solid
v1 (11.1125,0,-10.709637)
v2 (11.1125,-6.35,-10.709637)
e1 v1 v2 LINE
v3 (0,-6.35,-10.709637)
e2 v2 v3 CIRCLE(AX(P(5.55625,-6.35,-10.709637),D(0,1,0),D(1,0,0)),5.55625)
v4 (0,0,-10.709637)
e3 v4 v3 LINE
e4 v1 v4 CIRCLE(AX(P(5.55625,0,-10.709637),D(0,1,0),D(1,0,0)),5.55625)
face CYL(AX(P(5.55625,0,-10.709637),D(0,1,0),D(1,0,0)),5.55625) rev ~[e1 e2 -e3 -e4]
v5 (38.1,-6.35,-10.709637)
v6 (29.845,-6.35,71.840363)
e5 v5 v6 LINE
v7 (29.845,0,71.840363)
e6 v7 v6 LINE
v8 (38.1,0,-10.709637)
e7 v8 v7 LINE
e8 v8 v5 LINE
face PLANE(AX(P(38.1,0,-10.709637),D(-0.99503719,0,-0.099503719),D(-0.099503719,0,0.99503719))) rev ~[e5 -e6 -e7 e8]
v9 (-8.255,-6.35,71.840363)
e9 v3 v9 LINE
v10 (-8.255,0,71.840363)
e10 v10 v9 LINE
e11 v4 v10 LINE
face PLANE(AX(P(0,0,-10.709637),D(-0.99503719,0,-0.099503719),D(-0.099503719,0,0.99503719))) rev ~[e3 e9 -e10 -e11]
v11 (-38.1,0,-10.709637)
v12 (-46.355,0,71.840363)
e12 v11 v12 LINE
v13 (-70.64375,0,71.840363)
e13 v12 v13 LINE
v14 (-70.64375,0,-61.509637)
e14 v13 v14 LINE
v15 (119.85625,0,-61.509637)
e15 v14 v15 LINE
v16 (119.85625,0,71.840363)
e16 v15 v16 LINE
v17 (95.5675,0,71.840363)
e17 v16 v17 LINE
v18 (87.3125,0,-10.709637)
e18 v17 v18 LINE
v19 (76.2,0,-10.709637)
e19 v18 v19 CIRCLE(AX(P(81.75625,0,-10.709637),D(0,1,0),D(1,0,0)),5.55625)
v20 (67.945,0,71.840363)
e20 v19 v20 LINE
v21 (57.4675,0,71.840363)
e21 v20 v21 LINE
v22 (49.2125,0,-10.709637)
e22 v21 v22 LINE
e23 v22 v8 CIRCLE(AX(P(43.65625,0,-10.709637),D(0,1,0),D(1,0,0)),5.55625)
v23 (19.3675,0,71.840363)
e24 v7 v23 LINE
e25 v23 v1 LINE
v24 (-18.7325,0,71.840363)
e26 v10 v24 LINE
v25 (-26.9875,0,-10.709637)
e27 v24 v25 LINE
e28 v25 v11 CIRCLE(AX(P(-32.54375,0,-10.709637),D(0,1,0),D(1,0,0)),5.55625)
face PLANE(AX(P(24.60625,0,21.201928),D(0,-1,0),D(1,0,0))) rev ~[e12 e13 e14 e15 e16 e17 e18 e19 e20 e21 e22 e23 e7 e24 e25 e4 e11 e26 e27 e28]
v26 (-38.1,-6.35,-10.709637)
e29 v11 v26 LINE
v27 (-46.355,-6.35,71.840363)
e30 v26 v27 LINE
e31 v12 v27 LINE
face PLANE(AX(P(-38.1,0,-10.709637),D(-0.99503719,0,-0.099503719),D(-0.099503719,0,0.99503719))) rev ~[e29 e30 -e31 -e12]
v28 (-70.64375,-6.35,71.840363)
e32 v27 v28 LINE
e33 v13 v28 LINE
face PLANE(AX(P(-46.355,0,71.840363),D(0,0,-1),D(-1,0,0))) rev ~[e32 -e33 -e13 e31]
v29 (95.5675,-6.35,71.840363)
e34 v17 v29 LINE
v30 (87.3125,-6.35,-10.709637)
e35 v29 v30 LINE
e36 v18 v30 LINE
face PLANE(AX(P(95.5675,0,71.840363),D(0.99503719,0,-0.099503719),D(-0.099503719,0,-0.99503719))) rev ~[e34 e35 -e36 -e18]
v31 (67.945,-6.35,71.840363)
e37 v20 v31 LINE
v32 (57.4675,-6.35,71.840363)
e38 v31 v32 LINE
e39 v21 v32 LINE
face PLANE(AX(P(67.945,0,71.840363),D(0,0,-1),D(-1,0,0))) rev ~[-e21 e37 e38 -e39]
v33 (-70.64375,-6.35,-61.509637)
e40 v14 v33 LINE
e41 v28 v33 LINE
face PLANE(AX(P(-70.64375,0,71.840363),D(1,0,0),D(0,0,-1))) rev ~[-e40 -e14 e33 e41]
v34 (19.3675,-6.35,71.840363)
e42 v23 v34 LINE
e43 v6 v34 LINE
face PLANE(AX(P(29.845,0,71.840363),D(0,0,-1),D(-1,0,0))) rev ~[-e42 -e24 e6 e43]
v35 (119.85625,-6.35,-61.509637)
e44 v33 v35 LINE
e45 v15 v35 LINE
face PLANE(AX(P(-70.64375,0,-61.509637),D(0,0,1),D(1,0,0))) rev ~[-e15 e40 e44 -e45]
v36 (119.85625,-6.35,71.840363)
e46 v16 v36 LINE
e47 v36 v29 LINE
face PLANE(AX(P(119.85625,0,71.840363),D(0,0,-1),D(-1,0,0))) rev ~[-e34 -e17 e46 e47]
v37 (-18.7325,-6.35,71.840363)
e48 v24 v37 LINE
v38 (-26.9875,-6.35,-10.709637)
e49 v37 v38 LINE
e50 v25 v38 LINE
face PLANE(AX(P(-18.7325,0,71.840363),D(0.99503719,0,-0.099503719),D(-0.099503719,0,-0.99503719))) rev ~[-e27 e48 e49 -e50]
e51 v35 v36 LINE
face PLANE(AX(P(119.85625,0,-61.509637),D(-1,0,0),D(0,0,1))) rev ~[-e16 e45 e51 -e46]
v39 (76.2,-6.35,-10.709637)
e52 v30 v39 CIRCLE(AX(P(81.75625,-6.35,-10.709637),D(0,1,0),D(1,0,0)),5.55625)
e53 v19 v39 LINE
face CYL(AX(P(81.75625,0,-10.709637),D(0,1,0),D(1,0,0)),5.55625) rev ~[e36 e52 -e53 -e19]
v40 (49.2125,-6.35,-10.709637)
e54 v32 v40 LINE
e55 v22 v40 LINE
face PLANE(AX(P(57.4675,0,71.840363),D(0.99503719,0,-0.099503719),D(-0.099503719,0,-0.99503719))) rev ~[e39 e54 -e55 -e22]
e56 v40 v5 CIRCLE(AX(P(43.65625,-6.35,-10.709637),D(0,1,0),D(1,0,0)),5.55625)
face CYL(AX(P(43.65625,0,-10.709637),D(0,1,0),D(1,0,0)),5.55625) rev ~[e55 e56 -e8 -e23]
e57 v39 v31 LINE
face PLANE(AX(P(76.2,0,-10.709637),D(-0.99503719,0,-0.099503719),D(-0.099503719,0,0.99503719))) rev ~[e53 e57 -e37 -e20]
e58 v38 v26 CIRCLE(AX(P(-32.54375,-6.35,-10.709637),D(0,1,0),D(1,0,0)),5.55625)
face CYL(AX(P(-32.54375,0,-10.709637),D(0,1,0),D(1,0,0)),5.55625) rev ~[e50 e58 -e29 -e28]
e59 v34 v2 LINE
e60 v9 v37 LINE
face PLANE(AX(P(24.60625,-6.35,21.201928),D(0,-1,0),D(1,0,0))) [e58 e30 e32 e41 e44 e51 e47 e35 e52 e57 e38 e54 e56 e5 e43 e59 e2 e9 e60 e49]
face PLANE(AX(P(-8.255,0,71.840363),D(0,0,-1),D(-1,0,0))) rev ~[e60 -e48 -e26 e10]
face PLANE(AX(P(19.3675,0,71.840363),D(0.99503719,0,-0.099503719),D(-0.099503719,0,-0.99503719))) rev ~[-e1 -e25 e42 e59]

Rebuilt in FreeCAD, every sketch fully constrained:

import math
import FreeCAD as App
import Part
import Sketcher

V = App.Vector
Q = App.Units.Quantity

doc = App.newDocument("Part")
body = doc.addObject("PartDesign::Body", "Body")

# Sketch on XZ plane
sketch1 = body.newObject("Sketcher::SketchObject", "Sketch")
sketch1.AttachmentSupport = (doc.getObject("XZ_Plane"), [""])
sketch1.MapMode = "FlatFace"
sketch1.addGeometry(Part.LineSegment(V(119.85625, 71.840363, 0), V(95.5675, 71.840363, 0)), False)
sketch1.addGeometry(Part.LineSegment(V(95.5675, 71.840363, 0), V(87.3125, -10.709637, 0)), False)
sketch1.addGeometry(Part.ArcOfCircle(Part.Circle(V(81.75625, -10.709637, 0), V(0, 0, 1), 5.55625), math.radians(180), math.radians(360)), False)
sketch1.addGeometry(Part.LineSegment(V(76.2, -10.709637, 0), V(67.945, 71.840363, 0)), False)
sketch1.addGeometry(Part.LineSegment(V(67.945, 71.840363, 0), V(57.4675, 71.840363, 0)), False)
sketch1.addGeometry(Part.LineSegment(V(57.4675, 71.840363, 0), V(49.2125, -10.709637, 0)), False)
sketch1.addGeometry(Part.ArcOfCircle(Part.Circle(V(43.65625, -10.709637, 0), V(0, 0, 1), 5.55625), math.radians(180), math.radians(360)), False)
sketch1.addGeometry(Part.LineSegment(V(38.1, -10.709637, 0), V(29.845, 71.840363, 0)), False)
sketch1.addGeometry(Part.LineSegment(V(29.845, 71.840363, 0), V(19.3675, 71.840363, 0)), False)
sketch1.addGeometry(Part.LineSegment(V(19.3675, 71.840363, 0), V(11.1125, -10.709637, 0)), False)
sketch1.addGeometry(Part.ArcOfCircle(Part.Circle(V(5.55625, -10.709637, 0), V(0, 0, 1), 5.55625), math.radians(180), math.radians(360)), False)
sketch1.addGeometry(Part.LineSegment(V(0, -10.709637, 0), V(-8.255, 71.840363, 0)), False)
sketch1.addGeometry(Part.LineSegment(V(-8.255, 71.840363, 0), V(-18.7325, 71.840363, 0)), False)
sketch1.addGeometry(Part.LineSegment(V(-18.7325, 71.840363, 0), V(-26.9875, -10.709637, 0)), False)
sketch1.addGeometry(Part.ArcOfCircle(Part.Circle(V(-32.54375, -10.709637, 0), V(0, 0, 1), 5.55625), math.radians(180), math.radians(360)), False)
sketch1.addGeometry(Part.LineSegment(V(-38.1, -10.709637, 0), V(-46.355, 71.840363, 0)), False)
sketch1.addGeometry(Part.LineSegment(V(-46.355, 71.840363, 0), V(-70.64375, 71.840363, 0)), False)
sketch1.addGeometry(Part.LineSegment(V(-70.64375, 71.840363, 0), V(-70.64375, -61.509637, 0)), False)
sketch1.addGeometry(Part.LineSegment(V(-70.64375, -61.509637, 0), V(119.85625, -61.509637, 0)), False)
sketch1.addGeometry(Part.LineSegment(V(119.85625, -61.509637, 0), V(119.85625, 71.840363, 0)), False)
sketch1.addConstraint(Sketcher.Constraint("Coincident", 0, 2, 1, 1))
sketch1.addConstraint(Sketcher.Constraint("Coincident", 1, 2, 2, 2))
sketch1.addConstraint(Sketcher.Constraint("Coincident", 2, 1, 3, 1))
sketch1.addConstraint(Sketcher.Constraint("Coincident", 3, 2, 4, 1))
sketch1.addConstraint(Sketcher.Constraint("Coincident", 4, 2, 5, 1))
sketch1.addConstraint(Sketcher.Constraint("Coincident", 5, 2, 6, 2))
sketch1.addConstraint(Sketcher.Constraint("Coincident", 6, 1, 7, 1))
sketch1.addConstraint(Sketcher.Constraint("Coincident", 7, 2, 8, 1))
sketch1.addConstraint(Sketcher.Constraint("Coincident", 8, 2, 9, 1))
sketch1.addConstraint(Sketcher.Constraint("Coincident", 9, 2, 10, 2))
sketch1.addConstraint(Sketcher.Constraint("Coincident", 10, 1, 11, 1))
sketch1.addConstraint(Sketcher.Constraint("Coincident", 11, 2, 12, 1))
sketch1.addConstraint(Sketcher.Constraint("Coincident", 12, 2, 13, 1))
sketch1.addConstraint(Sketcher.Constraint("Coincident", 13, 2, 14, 2))
sketch1.addConstraint(Sketcher.Constraint("Coincident", 14, 1, 15, 1))
sketch1.addConstraint(Sketcher.Constraint("Coincident", 15, 2, 16, 1))
sketch1.addConstraint(Sketcher.Constraint("Coincident", 16, 2, 17, 1))
sketch1.addConstraint(Sketcher.Constraint("Coincident", 17, 2, 18, 1))
sketch1.addConstraint(Sketcher.Constraint("Coincident", 18, 2, 19, 1))
sketch1.addConstraint(Sketcher.Constraint("Coincident", 19, 2, 0, 1))
sketch1.addConstraint(Sketcher.Constraint("Horizontal", 0))
sketch1.addConstraint(Sketcher.Constraint("Horizontal", 4))
sketch1.addConstraint(Sketcher.Constraint("Horizontal", 8))
sketch1.addConstraint(Sketcher.Constraint("Horizontal", 12))
sketch1.addConstraint(Sketcher.Constraint("Horizontal", 16))
sketch1.addConstraint(Sketcher.Constraint("Vertical", 17))
sketch1.addConstraint(Sketcher.Constraint("Horizontal", 18))
sketch1.addConstraint(Sketcher.Constraint("Vertical", 19))
sketch1.addConstraint(Sketcher.Constraint("Equal", 2, 6))
sketch1.addConstraint(Sketcher.Constraint("Equal", 6, 10))
sketch1.addConstraint(Sketcher.Constraint("Equal", 10, 14))
sketch1.addConstraint(Sketcher.Constraint("Symmetric", 6, 1, 14, 1, -2))
sketch1.addConstraint(Sketcher.Constraint("PointOnObject", 10, 1, -2))
sketch1.addConstraint(Sketcher.Constraint("Parallel", 1, 5))
sketch1.addConstraint(Sketcher.Constraint("Parallel", 3, 7))
sketch1.addConstraint(Sketcher.Constraint("Parallel", 5, 9))
sketch1.addConstraint(Sketcher.Constraint("Parallel", 7, 11))
sketch1.addConstraint(Sketcher.Constraint("Parallel", 9, 13))
sketch1.addConstraint(Sketcher.Constraint("Parallel", 11, 15))
sketch1.addConstraint(Sketcher.Constraint("Horizontal", 2, 3, 6, 3))
sketch1.addConstraint(Sketcher.Constraint("Horizontal", 6, 3, 10, 3))
sketch1.addConstraint(Sketcher.Constraint("Horizontal", 10, 3, 14, 3))
sketch1.addConstraint(Sketcher.Constraint("Horizontal", 14, 3, 1, 2))
sketch1.addConstraint(Sketcher.Constraint("Horizontal", 1, 2, 2, 1))
sketch1.addConstraint(Sketcher.Constraint("Horizontal", 0, 2, 3, 2))
sketch1.addConstraint(Sketcher.Constraint("Horizontal", 2, 1, 5, 2))
sketch1.addConstraint(Sketcher.Constraint("Horizontal", 5, 2, 6, 1))
sketch1.addConstraint(Sketcher.Constraint("Horizontal", 4, 2, 7, 2))
sketch1.addConstraint(Sketcher.Constraint("Horizontal", 6, 1, 9, 2))
sketch1.addConstraint(Sketcher.Constraint("Horizontal", 9, 2, 10, 1))
sketch1.addConstraint(Sketcher.Constraint("Horizontal", 8, 2, 11, 2))
sketch1.addConstraint(Sketcher.Constraint("Horizontal", 10, 1, 13, 2))
sketch1.addConstraint(Sketcher.Constraint("Horizontal", 12, 2, 15, 2))
sketch1.addConstraint(Sketcher.Constraint("Equal", 4, 8))
sketch1.addConstraint(Sketcher.Constraint("Equal", 0, 16))
sketch1.addConstraint(Sketcher.Constraint("Equal", 1, 3))
sketch1.addConstraint(Sketcher.Constraint("DistanceX", 18, 1, 18, 2, Q("7.5 in")))
sketch1.addConstraint(Sketcher.Constraint("DistanceX", -1, 1, 2, 1, Q("3 in")))
sketch1.addConstraint(Sketcher.Constraint("Radius", 2, Q("0.21875 in")))
sketch1.addConstraint(Sketcher.Constraint("DistanceY", 17, 2, 14, 1, Q("2 in")))
sketch1.addConstraint(Sketcher.Constraint("DistanceY", 17, 2, 17, 1, Q("5.25 in")))
sketch1.addConstraint(Sketcher.Constraint("DistanceX", 4, 2, 4, 1, Q("0.4125 in")))
sketch1.addConstraint(Sketcher.Constraint("DistanceY", 2, 3, -1, 1, 10.709637))
pad1 = body.newObject("PartDesign::Pad", "Pad")
pad1.Profile = sketch1
pad1.Length = Q("0.25 in")

doc.recompute()
